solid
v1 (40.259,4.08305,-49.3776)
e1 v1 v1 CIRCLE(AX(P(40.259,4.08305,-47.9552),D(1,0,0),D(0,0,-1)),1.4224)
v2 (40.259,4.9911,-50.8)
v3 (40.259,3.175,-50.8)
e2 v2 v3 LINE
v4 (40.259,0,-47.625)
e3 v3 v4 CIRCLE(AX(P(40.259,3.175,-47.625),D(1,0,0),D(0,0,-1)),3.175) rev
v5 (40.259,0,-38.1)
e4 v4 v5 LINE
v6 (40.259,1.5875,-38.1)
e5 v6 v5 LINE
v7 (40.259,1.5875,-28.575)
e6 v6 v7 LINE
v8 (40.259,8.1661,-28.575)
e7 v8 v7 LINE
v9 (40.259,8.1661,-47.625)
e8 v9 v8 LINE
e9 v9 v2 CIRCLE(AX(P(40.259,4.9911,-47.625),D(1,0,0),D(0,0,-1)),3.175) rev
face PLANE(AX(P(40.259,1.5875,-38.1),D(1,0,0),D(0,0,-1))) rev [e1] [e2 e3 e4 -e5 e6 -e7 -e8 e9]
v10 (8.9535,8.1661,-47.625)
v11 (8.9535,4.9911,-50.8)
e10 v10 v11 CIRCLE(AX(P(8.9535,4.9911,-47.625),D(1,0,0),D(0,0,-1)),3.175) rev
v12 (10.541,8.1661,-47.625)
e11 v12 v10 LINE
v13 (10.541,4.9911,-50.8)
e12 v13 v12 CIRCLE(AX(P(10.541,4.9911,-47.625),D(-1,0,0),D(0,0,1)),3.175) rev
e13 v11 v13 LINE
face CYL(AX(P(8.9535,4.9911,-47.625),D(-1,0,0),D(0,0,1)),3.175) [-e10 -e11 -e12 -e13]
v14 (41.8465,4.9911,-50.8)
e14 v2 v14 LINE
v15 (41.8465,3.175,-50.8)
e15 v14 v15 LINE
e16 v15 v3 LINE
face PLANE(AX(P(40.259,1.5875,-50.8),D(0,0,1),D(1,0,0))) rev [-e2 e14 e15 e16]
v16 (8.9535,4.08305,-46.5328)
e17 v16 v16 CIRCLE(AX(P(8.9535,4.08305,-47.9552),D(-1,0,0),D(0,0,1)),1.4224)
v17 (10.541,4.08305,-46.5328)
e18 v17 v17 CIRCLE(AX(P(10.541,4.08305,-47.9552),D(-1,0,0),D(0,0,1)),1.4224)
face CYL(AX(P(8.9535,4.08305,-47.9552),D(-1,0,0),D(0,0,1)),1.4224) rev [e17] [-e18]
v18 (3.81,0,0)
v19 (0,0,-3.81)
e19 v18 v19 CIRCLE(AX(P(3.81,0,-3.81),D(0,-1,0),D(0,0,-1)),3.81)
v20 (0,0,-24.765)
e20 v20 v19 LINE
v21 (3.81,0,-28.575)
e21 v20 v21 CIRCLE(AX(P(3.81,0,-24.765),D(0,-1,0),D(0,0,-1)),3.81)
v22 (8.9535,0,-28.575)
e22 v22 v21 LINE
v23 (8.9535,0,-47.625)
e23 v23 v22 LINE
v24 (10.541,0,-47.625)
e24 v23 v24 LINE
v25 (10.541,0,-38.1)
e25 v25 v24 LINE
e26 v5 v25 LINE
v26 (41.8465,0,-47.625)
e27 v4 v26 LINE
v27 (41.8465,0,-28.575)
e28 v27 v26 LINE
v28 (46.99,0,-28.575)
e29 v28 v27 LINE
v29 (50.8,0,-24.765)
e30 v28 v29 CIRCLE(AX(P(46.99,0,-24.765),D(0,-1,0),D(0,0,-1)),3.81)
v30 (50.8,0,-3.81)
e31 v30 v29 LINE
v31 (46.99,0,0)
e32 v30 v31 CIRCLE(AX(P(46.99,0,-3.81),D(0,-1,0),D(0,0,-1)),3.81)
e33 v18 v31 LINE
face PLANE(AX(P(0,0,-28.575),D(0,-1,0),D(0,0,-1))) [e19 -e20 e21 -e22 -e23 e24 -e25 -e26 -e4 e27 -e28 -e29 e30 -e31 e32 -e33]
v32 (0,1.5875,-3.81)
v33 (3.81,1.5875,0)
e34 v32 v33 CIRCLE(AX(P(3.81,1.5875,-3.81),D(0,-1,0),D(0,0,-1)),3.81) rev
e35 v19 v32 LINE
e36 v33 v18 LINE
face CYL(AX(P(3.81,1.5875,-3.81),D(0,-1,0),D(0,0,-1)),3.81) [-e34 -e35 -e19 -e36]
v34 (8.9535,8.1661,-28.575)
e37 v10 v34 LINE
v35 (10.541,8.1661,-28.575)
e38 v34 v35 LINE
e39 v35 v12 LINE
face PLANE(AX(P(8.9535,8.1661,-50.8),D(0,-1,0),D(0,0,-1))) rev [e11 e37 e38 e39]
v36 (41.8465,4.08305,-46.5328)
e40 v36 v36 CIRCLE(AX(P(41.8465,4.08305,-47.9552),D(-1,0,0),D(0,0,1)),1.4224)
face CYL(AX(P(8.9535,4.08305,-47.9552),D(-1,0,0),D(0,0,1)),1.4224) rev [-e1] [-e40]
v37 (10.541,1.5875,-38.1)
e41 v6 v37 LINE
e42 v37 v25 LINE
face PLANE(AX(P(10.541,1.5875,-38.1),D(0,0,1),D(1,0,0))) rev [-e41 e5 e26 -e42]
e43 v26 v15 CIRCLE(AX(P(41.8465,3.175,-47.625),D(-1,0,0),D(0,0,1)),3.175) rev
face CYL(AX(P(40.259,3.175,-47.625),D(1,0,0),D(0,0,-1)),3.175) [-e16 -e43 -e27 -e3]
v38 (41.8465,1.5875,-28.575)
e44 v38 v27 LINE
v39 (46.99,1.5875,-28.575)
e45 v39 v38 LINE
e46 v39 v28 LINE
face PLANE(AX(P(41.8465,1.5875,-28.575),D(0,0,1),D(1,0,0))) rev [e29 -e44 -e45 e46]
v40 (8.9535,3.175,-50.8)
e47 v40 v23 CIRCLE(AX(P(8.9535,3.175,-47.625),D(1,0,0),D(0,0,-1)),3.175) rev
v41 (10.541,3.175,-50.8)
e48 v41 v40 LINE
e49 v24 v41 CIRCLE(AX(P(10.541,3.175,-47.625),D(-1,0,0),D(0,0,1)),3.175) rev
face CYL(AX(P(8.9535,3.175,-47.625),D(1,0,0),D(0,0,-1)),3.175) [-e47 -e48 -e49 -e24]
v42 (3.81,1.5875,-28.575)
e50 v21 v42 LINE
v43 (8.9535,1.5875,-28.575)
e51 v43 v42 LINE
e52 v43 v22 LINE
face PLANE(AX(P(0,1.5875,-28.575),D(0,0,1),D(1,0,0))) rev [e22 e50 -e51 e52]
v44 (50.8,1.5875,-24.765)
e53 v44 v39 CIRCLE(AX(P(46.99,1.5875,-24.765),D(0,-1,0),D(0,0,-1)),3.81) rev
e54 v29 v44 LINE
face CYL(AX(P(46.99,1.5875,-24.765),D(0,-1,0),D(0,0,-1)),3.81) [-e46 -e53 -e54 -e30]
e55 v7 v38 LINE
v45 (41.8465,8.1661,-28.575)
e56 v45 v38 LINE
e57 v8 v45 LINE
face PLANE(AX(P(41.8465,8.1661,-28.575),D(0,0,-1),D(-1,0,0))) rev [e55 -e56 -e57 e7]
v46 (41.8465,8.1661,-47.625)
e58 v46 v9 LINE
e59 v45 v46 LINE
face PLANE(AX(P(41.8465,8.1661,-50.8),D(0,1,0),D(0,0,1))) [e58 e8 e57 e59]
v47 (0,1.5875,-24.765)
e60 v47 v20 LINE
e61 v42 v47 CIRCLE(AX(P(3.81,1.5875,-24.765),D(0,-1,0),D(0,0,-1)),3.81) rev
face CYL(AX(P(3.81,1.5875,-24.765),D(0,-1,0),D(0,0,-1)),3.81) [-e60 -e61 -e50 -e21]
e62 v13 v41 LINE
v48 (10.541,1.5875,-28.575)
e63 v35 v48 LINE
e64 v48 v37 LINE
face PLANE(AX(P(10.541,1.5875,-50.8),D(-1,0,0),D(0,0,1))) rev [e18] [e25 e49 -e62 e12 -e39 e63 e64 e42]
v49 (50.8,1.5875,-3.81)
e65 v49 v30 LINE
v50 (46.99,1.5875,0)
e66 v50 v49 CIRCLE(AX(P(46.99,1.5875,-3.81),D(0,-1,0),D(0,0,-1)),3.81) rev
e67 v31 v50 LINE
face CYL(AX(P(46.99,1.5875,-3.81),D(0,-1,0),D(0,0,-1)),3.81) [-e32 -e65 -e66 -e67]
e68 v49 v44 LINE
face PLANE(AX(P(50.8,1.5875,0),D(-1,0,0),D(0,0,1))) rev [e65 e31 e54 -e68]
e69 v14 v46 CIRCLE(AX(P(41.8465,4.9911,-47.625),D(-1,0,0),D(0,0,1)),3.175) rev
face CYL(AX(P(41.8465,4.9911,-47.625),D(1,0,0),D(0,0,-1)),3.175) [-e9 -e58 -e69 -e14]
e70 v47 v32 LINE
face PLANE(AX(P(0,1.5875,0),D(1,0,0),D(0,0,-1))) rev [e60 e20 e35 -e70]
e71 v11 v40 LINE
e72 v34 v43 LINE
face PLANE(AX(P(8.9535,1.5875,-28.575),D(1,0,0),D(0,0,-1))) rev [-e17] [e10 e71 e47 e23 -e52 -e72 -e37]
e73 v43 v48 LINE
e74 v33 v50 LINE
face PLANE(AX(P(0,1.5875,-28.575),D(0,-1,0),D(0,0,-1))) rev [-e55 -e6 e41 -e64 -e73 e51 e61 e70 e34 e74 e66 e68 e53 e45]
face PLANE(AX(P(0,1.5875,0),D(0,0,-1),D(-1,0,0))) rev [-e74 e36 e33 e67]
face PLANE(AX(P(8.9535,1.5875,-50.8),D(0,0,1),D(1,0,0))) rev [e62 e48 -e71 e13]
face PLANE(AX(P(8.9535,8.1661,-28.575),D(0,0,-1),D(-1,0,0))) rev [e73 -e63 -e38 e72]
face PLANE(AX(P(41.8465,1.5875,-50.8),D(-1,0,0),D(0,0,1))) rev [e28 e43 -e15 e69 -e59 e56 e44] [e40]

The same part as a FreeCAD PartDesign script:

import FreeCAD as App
import Part
import Sketcher
Q = App.Units.Quantity


def edges_at(feature, points):
    """Names of the edges that pass closest to the given points."""
    edges = feature.Shape.Edges
    near = lambda p: min(range(len(edges)), key=lambda i: edges[i].distToShape(Part.Vertex(*p))[0])
    return sorted({f"Edge{near(p) + 1}" for p in points})


def add_polygon(sketch, points):
    """Adds a closed chain of lines whose ends are joined by coincident constraints."""
    first, n = sketch.GeometryCount, len(points)
    for a, b in zip(points, points[1:] + points[:1]):
        sketch.addGeometry(Part.LineSegment(App.Vector(*a, 0), App.Vector(*b, 0)), False)
    for i in range(n):
        sketch.addConstraint(Sketcher.Constraint("Coincident", first + i, 2, first + (i + 1) % n, 1))

doc = App.newDocument("Part")
params = doc.addObject("Spreadsheet::Sheet", "Params")
for row, (alias, value) in enumerate([
    ("sketch1_width", "2 in"),
    ("sketch1_height", "0.5 in"),
    ("sketch1_width2", "1.17 in"),
    ("sketch1_width3", "0.0625 in"),
    ("sketch1_height2", "0.875 in"),
    ("pad1_length", "0.0625 in"),
    ("sketch2_width", "0.0625 in"),
    ("sketch2_height", "0.875 in"),
    ("pad2_length", "0.259 in"),
    ("fillet_radius", "0.125 in"),
    ("fillet2_radius", "0.15 in"),
    ("sketch3_diameter", "0.112 in"),
    ("hole_diameter", "0.112 in"),
], start=1):
    params.set(f"A{row}", alias)
    params.set(f"B{row}", "=" + value)
    params.setAlias(f"B{row}", alias)

body = doc.addObject("PartDesign::Body", "Body")

sketch1 = body.newObject("Sketcher::SketchObject", "Sketch")
sketch1.AttachmentSupport = (doc.getObject("XZ_Plane"), [""])
sketch1.MapMode = "FlatFace"
add_polygon(sketch1, [(9, -50.8), (9, -28.6), (0, -28.6), (0, 0), (50.8, 0), (50.8, -28.6), (41.8, -28.6), (41.8, -50.8), (40.3, -50.8), (40.3, -38.1), (10.5, -38.1), (10.5, -50.8)])
sketch1.addConstraint([
    Sketcher.Constraint("Vertical", 0),
    Sketcher.Constraint("Horizontal", 1),
    Sketcher.Constraint("Vertical", 2),
    Sketcher.Constraint("Horizontal", 3),
    Sketcher.Constraint("Vertical", 4),
    Sketcher.Constraint("Horizontal", 5),
    Sketcher.Constraint("Vertical", 6),
    Sketcher.Constraint("Horizontal", 7),
    Sketcher.Constraint("Vertical", 8),
    Sketcher.Constraint("Horizontal", 9),
    Sketcher.Constraint("Vertical", 10),
    Sketcher.Constraint("Horizontal", 11),
    Sketcher.Constraint("Coincident", 2, 2, -1, 1),
    Sketcher.Constraint("Horizontal", 1, 2, 4, 2),
    Sketcher.Constraint("Horizontal", 7, 2, 10, 2),
    Sketcher.Constraint("Equal", 1, 5),
    Sketcher.Constraint("Equal", 7, 11),
    Sketcher.Constraint("DistanceX", 3, 1, 3, 2, Q("2 in")),
    Sketcher.Constraint("DistanceY", 8, 1, 8, 2, Q("0.5 in")),
    Sketcher.Constraint("DistanceY", 6, 2, -1, 1, Q("2 in")),
    Sketcher.Constraint("DistanceX", 9, 2, 9, 1, Q("1.17 in")),
    Sketcher.Constraint("DistanceX", 7, 2, 7, 1, Q("0.0625 in")),
    Sketcher.Constraint("DistanceY", 0, 1, 0, 2, Q("0.875 in")),
])
sketch1.setExpression("Constraints[29]", "Params.sketch1_width")
sketch1.setExpression("Constraints[30]", "Params.sketch1_height")
sketch1.setExpression("Constraints[32]", "Params.sketch1_width2")
sketch1.setExpression("Constraints[33]", "Params.sketch1_width3")
sketch1.setExpression("Constraints[34]", "Params.sketch1_height2")
pad1 = body.newObject("PartDesign::Pad", "Pad")
pad1.Profile = sketch1
pad1.setExpression("Length", "Params.pad1_length")
pad1.Reversed = True

sketch2 = body.newObject("Sketcher::SketchObject", "Sketch001")
sketch2.AttachmentSupport = (doc.getObject("XZ_Plane"), [""])
sketch2.MapMode = "FlatFace"
sketch2.AttachmentOffset = App.Placement(App.Vector(0, 0, -0.0625 * 25.4), App.Rotation())
add_polygon(sketch2, [(9, -50.8), (9, -28.6), (10.5, -28.6), (10.5, -50.8)])
add_polygon(sketch2, [(40.3, -50.8), (40.3, -28.6), (41.8, -28.6), (41.8, -50.8)])
sketch2.addConstraint([
    Sketcher.Constraint("Vertical", 0),
    Sketcher.Constraint("Horizontal", 1),
    Sketcher.Constraint("Vertical", 2),
    Sketcher.Constraint("Horizontal", 3),
    Sketcher.Constraint("Vertical", 4),
    Sketcher.Constraint("Horizontal", 5),
    Sketcher.Constraint("Vertical", 6),
    Sketcher.Constraint("Horizontal", 7),
    Sketcher.Constraint("Horizontal", 1, 2, 4, 2),
    Sketcher.Constraint("Horizontal", 3, 2, 6, 2),
    Sketcher.Constraint("Equal", 3, 5),
    Sketcher.Constraint("DistanceY", 2, 2, -1, 1, Q("2 in")),
    Sketcher.Constraint("DistanceX", 1, 1, 1, 2, Q("0.0625 in")),
    Sketcher.Constraint("DistanceY", 0, 1, 0, 2, Q("0.875 in")),
    Sketcher.Constraint("DistanceX", 1, 2, 4, 2, Q("1.17 in")),
    Sketcher.Constraint("DistanceX", -1, 1, 1, 2, Q("0.415 in")),
])
sketch2.setExpression("Constraints[20]", "Params.sketch2_width")
sketch2.setExpression("Constraints[21]", "Params.sketch2_height")
pad2 = body.newObject("PartDesign::Pad", "Pad001")
pad2.Profile = sketch2
pad2.setExpression("Length", "Params.pad2_length")
pad2.Reversed = True
doc.recompute()

fillet = body.newObject("PartDesign::Fillet", "Fillet")
fillet.Base = (pad2, edges_at(pad2, [
    (9.747, 0, -50.8),
    (41.053, 0, -50.8),
    (9.747, 8.166, -50.8),
    (41.053, 8.166, -50.8),
]))
fillet.setExpression("Radius", "Params.fillet_radius")
doc.recompute()

fillet2 = body.newObject("PartDesign::Fillet", "Fillet001")
fillet2.Base = (fillet, edges_at(fillet, [
    (0, 0.794, -28.575),
    (50.8, 0.794, -28.575),
    (50.8, 0.794, 0),
    (0, 0.794, 0),
]))
fillet2.setExpression("Radius", "Params.fillet2_radius")

sketch3 = body.newObject("Sketcher::SketchObject", "Sketch002")
sketch3.AttachmentSupport = (doc.getObject("YZ_Plane"), [""])
sketch3.MapMode = "FlatFace"
sketch3.AttachmentOffset = App.Placement(App.Vector(0, 0, 0.3525 * 25.4), App.Rotation())
sketch3.addGeometry(Part.Circle(App.Vector(4.1, -48, 0), App.Vector(0, 0, 1), 1.4), False)
sketch3.addConstraint([
    Sketcher.Constraint("Diameter", 0, Q("0.112 in")),
    Sketcher.Constraint("DistanceY", 0, 3, -1, 1, Q("1.888 in")),
    Sketcher.Constraint("DistanceX", -1, 1, 0, 3, 4.08305),
])
sketch3.setExpression("Constraints[0]", "Params.sketch3_diameter")
doc.recompute()
hole = body.newObject("PartDesign::Hole", "Hole")
hole.Profile = sketch3
hole.ThreadType = "None"
hole.setExpression("Diameter", "Params.hole_diameter")
hole.DepthType = "ThroughAll"
hole.Reversed = True

doc.recompute()
